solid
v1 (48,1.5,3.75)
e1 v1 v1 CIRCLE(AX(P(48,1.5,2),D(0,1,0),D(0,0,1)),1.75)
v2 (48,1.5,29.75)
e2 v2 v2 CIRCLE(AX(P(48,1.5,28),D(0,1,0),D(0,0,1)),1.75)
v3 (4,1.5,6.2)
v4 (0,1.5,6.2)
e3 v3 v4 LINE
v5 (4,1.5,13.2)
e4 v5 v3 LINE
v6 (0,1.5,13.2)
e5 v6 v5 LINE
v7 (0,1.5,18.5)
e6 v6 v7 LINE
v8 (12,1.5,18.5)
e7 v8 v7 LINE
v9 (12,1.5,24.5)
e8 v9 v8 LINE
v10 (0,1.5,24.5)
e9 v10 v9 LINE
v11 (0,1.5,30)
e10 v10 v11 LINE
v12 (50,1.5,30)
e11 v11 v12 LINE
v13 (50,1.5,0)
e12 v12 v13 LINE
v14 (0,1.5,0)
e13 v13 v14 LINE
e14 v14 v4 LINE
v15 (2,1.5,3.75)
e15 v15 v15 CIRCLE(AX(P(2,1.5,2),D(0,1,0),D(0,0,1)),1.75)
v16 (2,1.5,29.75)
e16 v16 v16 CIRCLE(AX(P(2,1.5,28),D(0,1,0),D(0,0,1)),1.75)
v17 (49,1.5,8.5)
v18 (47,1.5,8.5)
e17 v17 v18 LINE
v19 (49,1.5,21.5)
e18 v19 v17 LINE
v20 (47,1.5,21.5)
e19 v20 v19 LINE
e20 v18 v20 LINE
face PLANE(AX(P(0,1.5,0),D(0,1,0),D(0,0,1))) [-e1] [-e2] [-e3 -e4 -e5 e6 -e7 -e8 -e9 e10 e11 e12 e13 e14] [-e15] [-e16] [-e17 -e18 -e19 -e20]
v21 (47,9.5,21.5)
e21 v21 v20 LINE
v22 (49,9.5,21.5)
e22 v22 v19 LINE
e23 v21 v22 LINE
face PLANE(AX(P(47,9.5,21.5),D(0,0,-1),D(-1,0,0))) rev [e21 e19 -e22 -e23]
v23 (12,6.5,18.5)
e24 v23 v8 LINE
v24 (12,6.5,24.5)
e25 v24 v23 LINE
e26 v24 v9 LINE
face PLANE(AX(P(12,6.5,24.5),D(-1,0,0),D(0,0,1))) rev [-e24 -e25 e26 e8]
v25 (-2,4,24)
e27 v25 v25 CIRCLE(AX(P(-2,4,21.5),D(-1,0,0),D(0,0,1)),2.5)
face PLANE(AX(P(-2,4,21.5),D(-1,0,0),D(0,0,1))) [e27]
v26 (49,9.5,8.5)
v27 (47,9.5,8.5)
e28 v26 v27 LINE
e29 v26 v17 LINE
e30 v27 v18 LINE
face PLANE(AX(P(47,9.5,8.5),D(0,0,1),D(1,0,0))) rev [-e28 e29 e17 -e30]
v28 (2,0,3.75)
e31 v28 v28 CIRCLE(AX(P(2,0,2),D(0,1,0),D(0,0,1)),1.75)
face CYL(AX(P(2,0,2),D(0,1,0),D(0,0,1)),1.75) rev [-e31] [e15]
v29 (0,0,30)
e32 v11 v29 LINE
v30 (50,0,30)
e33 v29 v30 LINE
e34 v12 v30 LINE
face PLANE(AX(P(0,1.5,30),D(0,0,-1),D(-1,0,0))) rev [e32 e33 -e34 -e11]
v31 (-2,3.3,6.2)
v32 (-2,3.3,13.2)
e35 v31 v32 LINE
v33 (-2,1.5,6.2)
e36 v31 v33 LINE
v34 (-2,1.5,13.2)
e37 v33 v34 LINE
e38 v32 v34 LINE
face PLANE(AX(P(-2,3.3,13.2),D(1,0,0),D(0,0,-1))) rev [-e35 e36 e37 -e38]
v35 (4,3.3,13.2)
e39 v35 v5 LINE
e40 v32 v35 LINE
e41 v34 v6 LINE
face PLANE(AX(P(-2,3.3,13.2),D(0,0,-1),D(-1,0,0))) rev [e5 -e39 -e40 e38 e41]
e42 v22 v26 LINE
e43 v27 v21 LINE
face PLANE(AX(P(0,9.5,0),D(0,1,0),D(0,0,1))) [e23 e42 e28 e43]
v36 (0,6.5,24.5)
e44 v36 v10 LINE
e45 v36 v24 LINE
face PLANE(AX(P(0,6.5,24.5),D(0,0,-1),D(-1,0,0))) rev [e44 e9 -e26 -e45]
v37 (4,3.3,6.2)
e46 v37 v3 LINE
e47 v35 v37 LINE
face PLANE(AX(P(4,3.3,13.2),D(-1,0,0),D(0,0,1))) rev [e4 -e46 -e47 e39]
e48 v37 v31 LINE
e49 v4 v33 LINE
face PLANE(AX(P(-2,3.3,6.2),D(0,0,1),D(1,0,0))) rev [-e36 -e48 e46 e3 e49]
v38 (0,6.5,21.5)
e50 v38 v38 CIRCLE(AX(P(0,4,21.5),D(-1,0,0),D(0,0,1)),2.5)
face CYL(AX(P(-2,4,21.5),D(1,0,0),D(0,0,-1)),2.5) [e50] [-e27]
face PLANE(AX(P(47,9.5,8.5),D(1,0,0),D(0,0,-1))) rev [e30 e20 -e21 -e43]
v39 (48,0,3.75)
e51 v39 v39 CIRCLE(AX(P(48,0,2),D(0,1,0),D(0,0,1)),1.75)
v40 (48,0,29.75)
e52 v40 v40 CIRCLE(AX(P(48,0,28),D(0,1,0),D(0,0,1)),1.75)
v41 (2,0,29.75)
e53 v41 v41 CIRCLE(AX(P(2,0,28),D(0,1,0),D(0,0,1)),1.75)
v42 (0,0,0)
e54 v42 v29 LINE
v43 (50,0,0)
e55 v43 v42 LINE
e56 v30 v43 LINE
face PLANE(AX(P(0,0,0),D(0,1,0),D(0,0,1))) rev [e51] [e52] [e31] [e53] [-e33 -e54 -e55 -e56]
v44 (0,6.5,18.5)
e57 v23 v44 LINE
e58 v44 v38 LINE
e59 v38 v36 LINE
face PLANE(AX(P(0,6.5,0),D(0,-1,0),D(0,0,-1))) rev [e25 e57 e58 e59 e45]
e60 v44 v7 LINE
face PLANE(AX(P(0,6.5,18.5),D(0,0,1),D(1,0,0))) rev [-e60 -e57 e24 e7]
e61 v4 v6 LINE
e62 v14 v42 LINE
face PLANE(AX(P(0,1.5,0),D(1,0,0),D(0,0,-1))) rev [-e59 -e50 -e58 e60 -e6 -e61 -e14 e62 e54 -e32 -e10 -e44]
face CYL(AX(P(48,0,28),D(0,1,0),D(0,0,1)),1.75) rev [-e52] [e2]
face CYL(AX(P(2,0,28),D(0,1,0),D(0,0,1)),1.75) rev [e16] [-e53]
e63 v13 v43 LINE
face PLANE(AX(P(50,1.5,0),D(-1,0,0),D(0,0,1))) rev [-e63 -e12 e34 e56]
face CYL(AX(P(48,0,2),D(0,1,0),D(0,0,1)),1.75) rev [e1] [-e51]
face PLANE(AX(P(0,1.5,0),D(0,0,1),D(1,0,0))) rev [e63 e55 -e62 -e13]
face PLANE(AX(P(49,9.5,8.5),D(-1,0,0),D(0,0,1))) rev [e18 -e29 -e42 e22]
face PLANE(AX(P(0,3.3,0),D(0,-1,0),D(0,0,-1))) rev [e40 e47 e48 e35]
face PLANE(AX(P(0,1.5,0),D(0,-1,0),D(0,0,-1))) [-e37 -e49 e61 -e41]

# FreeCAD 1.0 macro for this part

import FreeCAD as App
import Part
import Sketcher
from FreeCAD import Vector
Q = App.Units.Quantity


def add_polygon(sketch, points):
    """Adds a closed chain of lines whose ends are joined by coincident constraints."""
    first, n = sketch.GeometryCount, len(points)
    for a, b in zip(points, points[1:] + points[:1]):
        sketch.addGeometry(Part.LineSegment(App.Vector(*a, 0), App.Vector(*b, 0)), False)
    for i in range(n):
        sketch.addConstraint(Sketcher.Constraint("Coincident", first + i, 2, first + (i + 1) % n, 1))

doc = App.newDocument("Part")
params = doc.addObject("Spreadsheet::Sheet", "Params")
for row, (alias, value) in enumerate([
    ("sketch1_width", "50 mm"),
    ("sketch1_height", "30 mm"),
    ("pad1_length", "1.5 mm"),
    ("sketch2_diameter", "3.5 mm"),
    ("sketch3_width", "2 mm"),
    ("sketch3_height", "13 mm"),
    ("pad2_length", "8 mm"),
    ("sketch4_width", "12 mm"),
    ("sketch4_height", "6 mm"),
    ("pad3_length", "5 mm"),
    ("sketch5_diameter", "5 mm"),
    ("pad4_length", "2 mm"),
    ("sketch6_width", "6 mm"),
    ("sketch6_height", "7 mm"),
    ("pad5_length", "1.8 mm"),
], start=1):
    params.set(f"A{row}", alias)
    params.set(f"B{row}", "=" + value)
    params.setAlias(f"B{row}", alias)

body = doc.addObject("PartDesign::Body", "Body")

# Sketch on XZ plane
sketch1 = doc.addObject("Sketcher::SketchObject", "Sketch")
body.addObject(sketch1)
sketch1.AttachmentSupport = (doc.XZ_Plane, [""])
sketch1.MapMode = "FlatFace"
add_polygon(sketch1, [(0, 0), (0, 30), (50, 30), (50, 0)])  # lines 0-3
sketch1.addConstraint([
    Sketcher.Constraint("Vertical", 0),
    Sketcher.Constraint("Horizontal", 1),
    Sketcher.Constraint("Vertical", 2),
    Sketcher.Constraint("Horizontal", 3),
    Sketcher.Constraint("Coincident", 3, 2, -1, 1),
    Sketcher.Constraint("DistanceX", 1, 1, 1, 2, Q("50 mm")),
    Sketcher.Constraint("DistanceY", 0, 1, 0, 2, Q("30 mm")),
])
sketch1.setExpression("Constraints[9]", "Params.sketch1_width")
sketch1.setExpression("Constraints[10]", "Params.sketch1_height")
pad1 = doc.addObject("PartDesign::Pad", "Pad")
body.addObject(pad1)
pad1.Profile = sketch1
pad1.setExpression("Length", "Params.pad1_length")
pad1.Reversed = True

# Sketch on XZ plane
sketch2 = doc.addObject("Sketcher::SketchObject", "Sketch001")
body.addObject(sketch2)
sketch2.AttachmentSupport = (doc.XZ_Plane, [""])
sketch2.MapMode = "FlatFace"
sketch2.AttachmentOffset = App.Placement(Vector(0, 0, -1.5), App.Rotation())
sketch2.addGeometry([
    Part.Circle(Vector(48, 28, 0), Vector(0, 0, 1), 1.8),
    Part.Circle(Vector(48, 2, 0), Vector(0, 0, 1), 1.8),
    Part.Circle(Vector(2, 2, 0), Vector(0, 0, 1), 1.8),
    Part.Circle(Vector(2, 28, 0), Vector(0, 0, 1), 1.8),
], False)
sketch2.addConstraint([
    Sketcher.Constraint("Equal", 0, 1),
    Sketcher.Constraint("Equal", 1, 2),
    Sketcher.Constraint("Equal", 2, 3),
    Sketcher.Constraint("Horizontal", 1, 3, 2, 3),
    Sketcher.Constraint("Horizontal", 0, 3, 3, 3),
    Sketcher.Constraint("Vertical", 0, 3, 1, 3),
    Sketcher.Constraint("Vertical", 2, 3, 3, 3),
    Sketcher.Constraint("Diameter", 0, Q("3.5 mm")),
    Sketcher.Constraint("DistanceX", -1, 1, 0, 3, Q("48 mm")),
    Sketcher.Constraint("DistanceY", -1, 1, 0, 3, Q("28 mm")),
    Sketcher.Constraint("DistanceY", -1, 1, 1, 3, Q("2 mm")),
    Sketcher.Constraint("DistanceX", -1, 1, 2, 3, Q("2 mm")),
])
sketch2.setExpression("Constraints[7]", "Params.sketch2_diameter")
pocket1 = doc.addObject("PartDesign::Pocket", "Pocket")
body.addObject(pocket1)
pocket1.Profile = sketch2
pocket1.Type = "ThroughAll"
pocket1.Reversed = True

# Sketch on XZ plane
sketch3 = doc.addObject("Sketcher::SketchObject", "Sketch002")
body.addObject(sketch3)
sketch3.AttachmentSupport = (doc.XZ_Plane, [""])
sketch3.MapMode = "FlatFace"
sketch3.AttachmentOffset = App.Placement(Vector(0, 0, -1.5), App.Rotation())
add_polygon(sketch3, [(47, 8.5), (47, 21.5), (49, 21.5), (49, 8.5)])  # lines 0-3
sketch3.addConstraint([
    Sketcher.Constraint("Vertical", 0),
    Sketcher.Constraint("Horizontal", 1),
    Sketcher.Constraint("Vertical", 2),
    Sketcher.Constraint("Horizontal", 3),
    Sketcher.Constraint("DistanceX", 1, 1, 1, 2, Q("2 mm")),
    Sketcher.Constraint("DistanceY", 0, 1, 0, 2, Q("13 mm")),
    Sketcher.Constraint("DistanceX", -1, 1, 0, 2, Q("47 mm")),
    Sketcher.Constraint("DistanceY", -1, 1, 0, 2, Q("21.5 mm")),
])
sketch3.setExpression("Constraints[8]", "Params.sketch3_width")
sketch3.setExpression("Constraints[9]", "Params.sketch3_height")
pad2 = doc.addObject("PartDesign::Pad", "Pad001")
body.addObject(pad2)
pad2.Profile = sketch3
pad2.setExpression("Length", "Params.pad2_length")
pad2.Reversed = True

# Sketch on XZ plane
sketch4 = doc.addObject("Sketcher::SketchObject", "Sketch003")
body.addObject(sketch4)
sketch4.AttachmentSupport = (doc.XZ_Plane, [""])
sketch4.MapMode = "FlatFace"
sketch4.AttachmentOffset = App.Placement(Vector(0, 0, -1.5), App.Rotation())
add_polygon(sketch4, [(0, 18), (0, 24), (12, 24), (12, 18)])  # lines 0-3
sketch4.addConstraint([
    Sketcher.Constraint("Vertical", 0),
    Sketcher.Constraint("Horizontal", 1),
    Sketcher.Constraint("Vertical", 2),
    Sketcher.Constraint("Horizontal", 3),
    Sketcher.Constraint("PointOnObject", 0, 2, -2),
    Sketcher.Constraint("DistanceX", 1, 1, 1, 2, Q("12 mm")),
    Sketcher.Constraint("DistanceY", 0, 1, 0, 2, Q("6 mm")),
    Sketcher.Constraint("DistanceY", -1, 1, 0, 2, Q("24.5 mm")),
])
sketch4.setExpression("Constraints[9]", "Params.sketch4_width")
sketch4.setExpression("Constraints[10]", "Params.sketch4_height")
pad3 = doc.addObject("PartDesign::Pad", "Pad002")
body.addObject(pad3)
pad3.Profile = sketch4
pad3.setExpression("Length", "Params.pad3_length")
pad3.Reversed = True

# Sketch on YZ plane
sketch5 = doc.addObject("Sketcher::SketchObject", "Sketch004")
body.addObject(sketch5)
sketch5.AttachmentSupport = (doc.YZ_Plane, [""])
sketch5.MapMode = "FlatFace"
sketch5.addGeometry(Part.Circle(Vector(4, 21.5, 0), Vector(0, 0, 1), 2.5), False)
sketch5.addConstraint([
    Sketcher.Constraint("Diameter", 0, Q("5 mm")),
    Sketcher.Constraint("DistanceX", -1, 1, 0, 3, Q("4 mm")),
    Sketcher.Constraint("DistanceY", -1, 1, 0, 3, Q("21.5 mm")),
])
sketch5.setExpression("Constraints[0]", "Params.sketch5_diameter")
pad4 = doc.addObject("PartDesign::Pad", "Pad003")
body.addObject(pad4)
pad4.Profile = sketch5
pad4.setExpression("Length", "Params.pad4_length")
pad4.Reversed = True

# Sketch on XZ plane
sketch6 = doc.addObject("Sketcher::SketchObject", "Sketch005")
body.addObject(sketch6)
sketch6.AttachmentSupport = (doc.XZ_Plane, [""])
sketch6.MapMode = "FlatFace"
sketch6.AttachmentOffset = App.Placement(Vector(0, 0, -1.5), App.Rotation())
add_polygon(sketch6, [(-2, 6), (-2, 13), (4, 13), (4, 6)])  # lines 0-3
sketch6.addConstraint([
    Sketcher.Constraint("Vertical", 0),
    Sketcher.Constraint("Horizontal", 1),
    Sketcher.Constraint("Vertical", 2),
    Sketcher.Constraint("Horizontal", 3),
    Sketcher.Constraint("DistanceX", 1, 1, 1, 2, Q("6 mm")),
    Sketcher.Constraint("DistanceY", 0, 1, 0, 2, Q("7 mm")),
    Sketcher.Constraint("DistanceX", 0, 2, -1, 1, Q("2 mm")),
    Sketcher.Constraint("DistanceY", -1, 1, 0, 2, Q("13.2 mm")),
])
sketch6.setExpression("Constraints[8]", "Params.sketch6_width")
sketch6.setExpression("Constraints[9]", "Params.sketch6_height")
pad5 = doc.addObject("PartDesign::Pad", "Pad004")
body.addObject(pad5)
pad5.Profile = sketch6
pad5.setExpression("Length", "Params.pad5_length")
pad5.Reversed = True

doc.recompute()
